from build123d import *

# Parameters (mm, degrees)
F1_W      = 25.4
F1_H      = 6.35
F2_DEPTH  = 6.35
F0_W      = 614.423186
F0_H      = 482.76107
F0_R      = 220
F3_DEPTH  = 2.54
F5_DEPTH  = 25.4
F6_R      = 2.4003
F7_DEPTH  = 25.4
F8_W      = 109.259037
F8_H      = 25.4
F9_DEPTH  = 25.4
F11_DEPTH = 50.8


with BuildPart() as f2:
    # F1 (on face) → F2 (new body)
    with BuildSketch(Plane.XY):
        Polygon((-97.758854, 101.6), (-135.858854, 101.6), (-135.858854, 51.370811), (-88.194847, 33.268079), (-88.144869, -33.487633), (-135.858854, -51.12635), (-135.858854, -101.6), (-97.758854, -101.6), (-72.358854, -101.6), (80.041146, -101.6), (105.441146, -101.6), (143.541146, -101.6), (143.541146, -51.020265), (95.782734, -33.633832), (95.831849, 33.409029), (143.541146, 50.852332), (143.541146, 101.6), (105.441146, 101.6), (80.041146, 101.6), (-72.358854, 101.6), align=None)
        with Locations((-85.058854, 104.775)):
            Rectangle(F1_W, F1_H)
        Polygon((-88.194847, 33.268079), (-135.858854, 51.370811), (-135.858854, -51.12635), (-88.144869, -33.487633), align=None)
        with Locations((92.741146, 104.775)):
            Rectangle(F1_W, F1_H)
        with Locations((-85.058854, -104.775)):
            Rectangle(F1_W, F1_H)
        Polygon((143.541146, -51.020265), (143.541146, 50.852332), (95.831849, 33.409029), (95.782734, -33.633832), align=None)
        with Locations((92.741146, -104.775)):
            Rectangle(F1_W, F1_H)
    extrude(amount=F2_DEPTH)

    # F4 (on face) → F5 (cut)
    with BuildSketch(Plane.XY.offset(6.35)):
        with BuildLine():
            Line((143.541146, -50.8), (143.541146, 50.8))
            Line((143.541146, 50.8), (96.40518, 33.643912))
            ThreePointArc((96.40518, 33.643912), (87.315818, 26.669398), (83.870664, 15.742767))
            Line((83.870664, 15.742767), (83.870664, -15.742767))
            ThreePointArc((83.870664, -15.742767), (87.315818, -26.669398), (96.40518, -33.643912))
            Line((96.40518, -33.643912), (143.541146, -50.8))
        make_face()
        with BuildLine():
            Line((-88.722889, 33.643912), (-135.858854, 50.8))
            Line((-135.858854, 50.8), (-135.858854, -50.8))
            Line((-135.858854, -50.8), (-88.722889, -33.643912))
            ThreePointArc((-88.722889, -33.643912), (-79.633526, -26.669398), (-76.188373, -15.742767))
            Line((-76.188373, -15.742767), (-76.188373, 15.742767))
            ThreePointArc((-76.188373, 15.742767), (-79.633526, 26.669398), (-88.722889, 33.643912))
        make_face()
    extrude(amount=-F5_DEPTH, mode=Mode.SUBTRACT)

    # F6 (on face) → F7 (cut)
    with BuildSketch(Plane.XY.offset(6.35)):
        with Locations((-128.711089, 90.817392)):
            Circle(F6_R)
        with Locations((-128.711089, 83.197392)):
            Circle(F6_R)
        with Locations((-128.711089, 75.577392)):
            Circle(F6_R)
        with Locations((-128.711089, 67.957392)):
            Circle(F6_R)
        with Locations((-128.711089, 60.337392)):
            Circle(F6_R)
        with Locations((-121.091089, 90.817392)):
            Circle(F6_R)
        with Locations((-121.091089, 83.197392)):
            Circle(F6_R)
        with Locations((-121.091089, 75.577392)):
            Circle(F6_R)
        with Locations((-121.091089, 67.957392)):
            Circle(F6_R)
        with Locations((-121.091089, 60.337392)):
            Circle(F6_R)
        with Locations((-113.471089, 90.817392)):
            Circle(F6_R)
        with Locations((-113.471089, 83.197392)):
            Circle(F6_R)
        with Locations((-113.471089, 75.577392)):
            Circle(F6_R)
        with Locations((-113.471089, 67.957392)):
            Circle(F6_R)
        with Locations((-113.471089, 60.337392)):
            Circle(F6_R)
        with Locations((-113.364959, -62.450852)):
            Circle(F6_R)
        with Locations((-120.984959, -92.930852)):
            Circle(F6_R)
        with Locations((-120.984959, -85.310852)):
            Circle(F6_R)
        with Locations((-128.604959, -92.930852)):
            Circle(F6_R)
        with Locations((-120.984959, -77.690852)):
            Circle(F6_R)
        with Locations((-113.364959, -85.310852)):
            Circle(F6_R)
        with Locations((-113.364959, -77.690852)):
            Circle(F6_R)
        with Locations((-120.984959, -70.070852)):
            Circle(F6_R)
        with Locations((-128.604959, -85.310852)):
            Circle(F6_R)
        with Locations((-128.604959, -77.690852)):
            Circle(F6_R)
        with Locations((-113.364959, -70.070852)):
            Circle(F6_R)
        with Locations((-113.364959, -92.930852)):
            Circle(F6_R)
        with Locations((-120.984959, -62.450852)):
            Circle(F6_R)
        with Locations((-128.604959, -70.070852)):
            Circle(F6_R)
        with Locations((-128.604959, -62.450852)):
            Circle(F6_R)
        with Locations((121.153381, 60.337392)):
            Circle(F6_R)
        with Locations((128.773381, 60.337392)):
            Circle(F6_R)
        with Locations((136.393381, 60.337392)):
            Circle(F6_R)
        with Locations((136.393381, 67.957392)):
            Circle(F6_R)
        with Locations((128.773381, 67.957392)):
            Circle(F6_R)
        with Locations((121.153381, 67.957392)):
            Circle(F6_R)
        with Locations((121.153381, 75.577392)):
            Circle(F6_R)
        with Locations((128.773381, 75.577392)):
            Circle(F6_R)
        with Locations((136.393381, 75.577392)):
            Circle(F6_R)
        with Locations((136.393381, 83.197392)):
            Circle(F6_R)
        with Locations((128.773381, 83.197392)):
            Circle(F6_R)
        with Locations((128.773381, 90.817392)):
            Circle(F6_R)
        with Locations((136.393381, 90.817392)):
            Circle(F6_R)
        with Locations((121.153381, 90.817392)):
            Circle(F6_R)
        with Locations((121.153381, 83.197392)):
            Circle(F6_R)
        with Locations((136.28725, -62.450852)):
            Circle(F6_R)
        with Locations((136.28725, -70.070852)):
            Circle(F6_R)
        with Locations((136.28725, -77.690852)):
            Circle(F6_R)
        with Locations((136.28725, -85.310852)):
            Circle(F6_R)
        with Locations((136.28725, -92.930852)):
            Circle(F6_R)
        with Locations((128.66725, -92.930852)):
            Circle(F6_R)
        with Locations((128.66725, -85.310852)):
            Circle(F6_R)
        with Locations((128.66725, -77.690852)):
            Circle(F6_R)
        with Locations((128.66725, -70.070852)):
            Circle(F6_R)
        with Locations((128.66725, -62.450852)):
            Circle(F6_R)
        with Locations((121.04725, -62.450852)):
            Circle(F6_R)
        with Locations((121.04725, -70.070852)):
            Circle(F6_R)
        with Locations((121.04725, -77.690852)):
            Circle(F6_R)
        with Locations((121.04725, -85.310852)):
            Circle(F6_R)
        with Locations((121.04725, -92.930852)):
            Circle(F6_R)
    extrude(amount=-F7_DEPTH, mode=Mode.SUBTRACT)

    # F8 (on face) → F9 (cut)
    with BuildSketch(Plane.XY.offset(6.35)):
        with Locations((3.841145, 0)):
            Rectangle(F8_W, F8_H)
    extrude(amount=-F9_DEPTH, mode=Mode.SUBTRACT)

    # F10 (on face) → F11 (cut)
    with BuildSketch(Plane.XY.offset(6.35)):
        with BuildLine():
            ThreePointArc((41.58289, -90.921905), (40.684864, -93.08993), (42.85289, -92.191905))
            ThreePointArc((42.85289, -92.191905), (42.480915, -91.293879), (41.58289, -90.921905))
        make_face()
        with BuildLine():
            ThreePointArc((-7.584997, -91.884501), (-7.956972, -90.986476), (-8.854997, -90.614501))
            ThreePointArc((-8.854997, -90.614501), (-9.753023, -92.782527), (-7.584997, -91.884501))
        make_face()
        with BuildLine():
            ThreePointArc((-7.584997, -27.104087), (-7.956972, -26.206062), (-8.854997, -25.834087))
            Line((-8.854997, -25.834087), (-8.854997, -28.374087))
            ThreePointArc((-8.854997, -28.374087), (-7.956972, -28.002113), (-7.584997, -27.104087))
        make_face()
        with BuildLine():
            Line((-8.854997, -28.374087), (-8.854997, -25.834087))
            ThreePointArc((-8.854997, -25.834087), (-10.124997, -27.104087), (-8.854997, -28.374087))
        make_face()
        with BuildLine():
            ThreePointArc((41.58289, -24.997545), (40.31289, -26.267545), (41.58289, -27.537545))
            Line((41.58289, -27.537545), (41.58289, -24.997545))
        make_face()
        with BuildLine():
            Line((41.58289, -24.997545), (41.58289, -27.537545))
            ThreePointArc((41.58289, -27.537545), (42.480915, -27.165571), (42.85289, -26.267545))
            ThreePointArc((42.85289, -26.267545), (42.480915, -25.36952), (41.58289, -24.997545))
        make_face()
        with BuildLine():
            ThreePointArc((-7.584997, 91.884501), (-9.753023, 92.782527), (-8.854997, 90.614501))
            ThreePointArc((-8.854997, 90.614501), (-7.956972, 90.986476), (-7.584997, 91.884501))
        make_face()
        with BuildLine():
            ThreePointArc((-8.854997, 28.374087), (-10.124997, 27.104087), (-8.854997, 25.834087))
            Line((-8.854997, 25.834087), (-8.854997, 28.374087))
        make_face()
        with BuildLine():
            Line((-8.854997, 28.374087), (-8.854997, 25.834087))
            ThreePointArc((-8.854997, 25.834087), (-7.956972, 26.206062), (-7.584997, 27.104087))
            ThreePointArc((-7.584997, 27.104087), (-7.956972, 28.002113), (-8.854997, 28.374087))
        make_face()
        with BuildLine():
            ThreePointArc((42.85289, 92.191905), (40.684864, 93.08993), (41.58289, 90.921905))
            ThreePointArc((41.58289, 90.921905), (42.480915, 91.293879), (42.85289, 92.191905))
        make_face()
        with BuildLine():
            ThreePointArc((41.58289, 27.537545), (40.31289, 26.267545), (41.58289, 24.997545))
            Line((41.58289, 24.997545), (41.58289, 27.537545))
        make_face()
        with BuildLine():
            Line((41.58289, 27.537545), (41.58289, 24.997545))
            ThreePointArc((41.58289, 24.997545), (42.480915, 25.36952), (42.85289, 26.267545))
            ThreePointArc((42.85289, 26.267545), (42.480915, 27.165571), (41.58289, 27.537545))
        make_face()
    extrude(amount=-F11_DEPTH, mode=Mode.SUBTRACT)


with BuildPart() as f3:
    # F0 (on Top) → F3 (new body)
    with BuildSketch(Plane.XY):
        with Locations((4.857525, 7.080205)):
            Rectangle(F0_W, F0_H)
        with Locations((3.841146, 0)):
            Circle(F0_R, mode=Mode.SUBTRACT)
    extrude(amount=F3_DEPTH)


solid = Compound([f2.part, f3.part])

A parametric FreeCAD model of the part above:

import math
import FreeCAD as App
import Part
import Sketcher
Q = App.Units.Quantity

doc = App.newDocument("Part")
body = doc.addObject("PartDesign::Body", "Body")

# Sketch on XY plane
sketch1 = body.newObject("Sketcher::SketchObject", "Sketch")
sketch1.AttachmentSupport = (doc.getObject("XY_Plane"), [""])
sketch1.MapMode = "FlatFace"
sketch1.addGeometry(Part.LineSegment(App.Vector(-135.858854, 101.6, 0), App.Vector(-135.858854, -101.6, 0)), False)
sketch1.addGeometry(Part.LineSegment(App.Vector(-135.858854, -101.6, 0), App.Vector(-97.758854, -101.6, 0)), False)
sketch1.addGeometry(Part.LineSegment(App.Vector(-97.758854, -101.6, 0), App.Vector(-97.758854, -107.95, 0)), False)
sketch1.addGeometry(Part.LineSegment(App.Vector(-97.758854, -107.95, 0), App.Vector(-72.358854, -107.95, 0)), False)
sketch1.addGeometry(Part.LineSegment(App.Vector(-72.358854, -107.95, 0), App.Vector(-72.358854, -101.6, 0)), False)
sketch1.addGeometry(Part.LineSegment(App.Vector(-72.358854, -101.6, 0), App.Vector(80.041146, -101.6, 0)), False)
sketch1.addGeometry(Part.LineSegment(App.Vector(80.041146, -101.6, 0), App.Vector(80.041146, -107.95, 0)), False)
sketch1.addGeometry(Part.LineSegment(App.Vector(80.041146, -107.95, 0), App.Vector(105.441146, -107.95, 0)), False)
sketch1.addGeometry(Part.LineSegment(App.Vector(105.441146, -107.95, 0), App.Vector(105.441146, -101.6, 0)), False)
sketch1.addGeometry(Part.LineSegment(App.Vector(105.441146, -101.6, 0), App.Vector(143.541146, -101.6, 0)), False)
sketch1.addGeometry(Part.LineSegment(App.Vector(143.541146, -101.6, 0), App.Vector(143.541146, 101.6, 0)), False)
sketch1.addGeometry(Part.LineSegment(App.Vector(143.541146, 101.6, 0), App.Vector(105.441146, 101.6, 0)), False)
sketch1.addGeometry(Part.LineSegment(App.Vector(105.441146, 101.6, 0), App.Vector(105.441146, 107.95, 0)), False)
sketch1.addGeometry(Part.LineSegment(App.Vector(105.441146, 107.95, 0), App.Vector(80.041146, 107.95, 0)), False)
sketch1.addGeometry(Part.LineSegment(App.Vector(80.041146, 107.95, 0), App.Vector(80.041146, 101.6, 0)), False)
sketch1.addGeometry(Part.LineSegment(App.Vector(80.041146, 101.6, 0), App.Vector(-72.358854, 101.6, 0)), False)
sketch1.addGeometry(Part.LineSegment(App.Vector(-72.358854, 101.6, 0), App.Vector(-72.358854, 107.95, 0)), False)
sketch1.addGeometry(Part.LineSegment(App.Vector(-72.358854, 107.95, 0), App.Vector(-97.758854, 107.95, 0)), False)
sketch1.addGeometry(Part.LineSegment(App.Vector(-97.758854, 107.95, 0), App.Vector(-97.758854, 101.6, 0)), False)
sketch1.addGeometry(Part.LineSegment(App.Vector(-97.758854, 101.6, 0), App.Vector(-135.858854, 101.6, 0)), False)
sketch1.addConstraint(Sketcher.Constraint("Coincident", 0, 2, 1, 1))
sketch1.addConstraint(Sketcher.Constraint("Coincident", 1, 2, 2, 1))
sketch1.addConstraint(Sketcher.Constraint("Coincident", 2, 2, 3, 1))
sketch1.addConstraint(Sketcher.Constraint("Coincident", 3, 2, 4, 1))
sketch1.addConstraint(Sketcher.Constraint("Coincident", 4, 2, 5, 1))
sketch1.addConstraint(Sketcher.Constraint("Coincident", 5, 2, 6, 1))
sketch1.addConstraint(Sketcher.Constraint("Coincident", 6, 2, 7, 1))
sketch1.addConstraint(Sketcher.Constraint("Coincident", 7, 2, 8, 1))
sketch1.addConstraint(Sketcher.Constraint("Coincident", 8, 2, 9, 1))
sketch1.addConstraint(Sketcher.Constraint("Coincident", 9, 2, 10, 1))
sketch1.addConstraint(Sketcher.Constraint("Coincident", 10, 2, 11, 1))
sketch1.addConstraint(Sketcher.Constraint("Coincident", 11, 2, 12, 1))
sketch1.addConstraint(Sketcher.Constraint("Coincident", 12, 2, 13, 1))
sketch1.addConstraint(Sketcher.Constraint("Coincident", 13, 2, 14, 1))
sketch1.addConstraint(Sketcher.Constraint("Coincident", 14, 2, 15, 1))
sketch1.addConstraint(Sketcher.Constraint("Coincident", 15, 2, 16, 1))
sketch1.addConstraint(Sketcher.Constraint("Coincident", 16, 2, 17, 1))
sketch1.addConstraint(Sketcher.Constraint("Coincident", 17, 2, 18, 1))
sketch1.addConstraint(Sketcher.Constraint("Coincident", 18, 2, 19, 1))
sketch1.addConstraint(Sketcher.Constraint("Coincident", 19, 2, 0, 1))
sketch1.addConstraint(Sketcher.Constraint("Vertical", 0))
sketch1.addConstraint(Sketcher.Constraint("Horizontal", 1))
sketch1.addConstraint(Sketcher.Constraint("Vertical", 2))
sketch1.addConstraint(Sketcher.Constraint("Horizontal", 3))
sketch1.addConstraint(Sketcher.Constraint("Vertical", 4))
sketch1.addConstraint(Sketcher.Constraint("Horizontal", 5))
sketch1.addConstraint(Sketcher.Constraint("Vertical", 6))
sketch1.addConstraint(Sketcher.Constraint("Horizontal", 7))
sketch1.addConstraint(Sketcher.Constraint("Vertical", 8))
sketch1.addConstraint(Sketcher.Constraint("Horizontal", 9))
sketch1.addConstraint(Sketcher.Constraint("Vertical", 10))
sketch1.addConstraint(Sketcher.Constraint("Horizontal", 11))
sketch1.addConstraint(Sketcher.Constraint("Vertical", 12))
sketch1.addConstraint(Sketcher.Constraint("Horizontal", 13))
sketch1.addConstraint(Sketcher.Constraint("Vertical", 14))
sketch1.addConstraint(Sketcher.Constraint("Horizontal", 15))
sketch1.addConstraint(Sketcher.Constraint("Vertical", 16))
sketch1.addConstraint(Sketcher.Constraint("Horizontal", 17))
sketch1.addConstraint(Sketcher.Constraint("Vertical", 18))
sketch1.addConstraint(Sketcher.Constraint("Horizontal", 19))
sketch1.addConstraint(Sketcher.Constraint("Symmetric", 8, 2, 11, 2, -1))
sketch1.addConstraint(Sketcher.Constraint("Symmetric", 6, 2, 13, 2, -1))
sketch1.addConstraint(Sketcher.Constraint("Symmetric", 4, 2, 15, 2, -1))
sketch1.addConstraint(Sketcher.Constraint("Symmetric", 2, 2, 17, 2, -1))
sketch1.addConstraint(Sketcher.Constraint("Horizontal", 1, 2, 4, 2))
sketch1.addConstraint(Sketcher.Constraint("Horizontal", 3, 2, 6, 2))
sketch1.addConstraint(Sketcher.Constraint("Horizontal", 5, 2, 8, 2))
sketch1.addConstraint(Sketcher.Constraint("Horizontal", 15, 2, 18, 2))
sketch1.addConstraint(Sketcher.Constraint("Equal", 3, 7))
sketch1.addConstraint(Sketcher.Constraint("Equal", 1, 9))
sketch1.addConstraint(Sketcher.Constraint("DistanceX", 3, 1, 3, 2, Q("1 in")))
sketch1.addConstraint(Sketcher.Constraint("DistanceX", 5, 1, 5, 2, Q("6 in")))
sketch1.addConstraint(Sketcher.Constraint("DistanceY", 0, 2, 0, 1, Q("8 in")))
sketch1.addConstraint(Sketcher.Constraint("DistanceX", 1, 1, 1, 2, Q("1.5 in")))
sketch1.addConstraint(Sketcher.Constraint("DistanceY", 2, 2, 2, 1, Q("0.25 in")))
sketch1.addConstraint(Sketcher.Constraint("DistanceX", 0, 2, -1, 1, Q("135.858854 mm")))
pad1 = body.newObject("PartDesign::Pad", "Pad")
pad1.Profile = sketch1
pad1.Length = Q("0.25 in")

# Sketch on XY plane
sketch2 = body.newObject("Sketcher::SketchObject", "Sketch001")
sketch2.AttachmentSupport = (doc.getObject("XY_Plane"), [""])
sketch2.MapMode = "FlatFace"
sketch2.AttachmentOffset = App.Placement(App.Vector(0, 0, 0.25 * 25.4), App.Rotation())
sketch2.addGeometry(Part.LineSegment(App.Vector(143.541146, -50.8, 0), App.Vector(143.541146, 50.8, 0)), False)
sketch2.addGeometry(Part.LineSegment(App.Vector(143.541146, 50.8, 0), App.Vector(96.40518, 33.643912, 0)), False)
sketch2.addGeometry(Part.ArcOfCircle(Part.Circle(App.Vector(102.920668, 15.742765, 0), App.Vector(0, 0, 1), 19.050004), math.radians(110.000009), math.radians(179.999994)), False)
sketch2.addGeometry(Part.LineSegment(App.Vector(83.870664, 15.742767, 0), App.Vector(83.870664, -15.742767, 0)), False)
sketch2.addGeometry(Part.ArcOfCircle(Part.Circle(App.Vector(102.920668, -15.742765, 0), App.Vector(0, 0, 1), 19.050004), math.radians(-179.999994), math.radians(-110.000009)), False)
sketch2.addGeometry(Part.LineSegment(App.Vector(96.40518, -33.643912, 0), App.Vector(143.541146, -50.8, 0)), False)
sketch2.addGeometry(Part.LineSegment(App.Vector(-88.722889, 33.643912, 0), App.Vector(-135.858854, 50.8, 0)), False)
sketch2.addGeometry(Part.LineSegment(App.Vector(-135.858854, 50.8, 0), App.Vector(-135.858854, -50.8, 0)), False)
sketch2.addGeometry(Part.LineSegment(App.Vector(-135.858854, -50.8, 0), App.Vector(-88.722889, -33.643912, 0)), False)
sketch2.addGeometry(Part.ArcOfCircle(Part.Circle(App.Vector(-95.238373, -15.742768, 0), App.Vector(0, 0, 1), 19.05), math.radians(-69.999999), math.radians(0.000002)), False)
sketch2.addGeometry(Part.LineSegment(App.Vector(-76.188373, -15.742767, 0), App.Vector(-76.188373, 15.742767, 0)), False)
sketch2.addGeometry(Part.ArcOfCircle(Part.Circle(App.Vector(-95.238373, 15.742768, 0), App.Vector(0, 0, 1), 19.05), math.radians(-0.000002), math.radians(69.999999)), False)
sketch2.addConstraint(Sketcher.Constraint("Coincident", 0, 2, 1, 1))
sketch2.addConstraint(Sketcher.Constraint("Tangent", 1, 2, 2, 1))
sketch2.addConstraint(Sketcher.Constraint("Tangent", 2, 2, 3, 1))
sketch2.addConstraint(Sketcher.Constraint("Tangent", 3, 2, 4, 1))
sketch2.addConstraint(Sketcher.Constraint("Tangent", 4, 2, 5, 1))
sketch2.addConstraint(Sketcher.Constraint("Coincident", 5, 2, 0, 1))
sketch2.addConstraint(Sketcher.Constraint("Coincident", 6, 2, 7, 1))
sketch2.addConstraint(Sketcher.Constraint("Coincident", 7, 2, 8, 1))
sketch2.addConstraint(Sketcher.Constraint("Tangent", 8, 2, 9, 1))
sketch2.addConstraint(Sketcher.Constraint("Tangent", 9, 2, 10, 1))
sketch2.addConstraint(Sketcher.Constraint("Tangent", 10, 2, 11, 1))
sketch2.addConstraint(Sketcher.Constraint("Tangent", 11, 2, 6, 1))
sketch2.addConstraint(Sketcher.Constraint("Vertical", 0))
sketch2.addConstraint(Sketcher.Constraint("Vertical", 3))
sketch2.addConstraint(Sketcher.Constraint("Vertical", 7))
sketch2.addConstraint(Sketcher.Constraint("Vertical", 10))
sketch2.addConstraint(Sketcher.Constraint("Equal", 2, 4))
sketch2.addConstraint(Sketcher.Constraint("Equal", 9, 11))
sketch2.addConstraint(Sketcher.Constraint("Symmetric", 1, 2, 4, 2, -1))
sketch2.addConstraint(Sketcher.Constraint("Symmetric", 8, 2, 11, 2, -1))
sketch2.addConstraint(Sketcher.Constraint("Parallel", 5, 6))
sketch2.addConstraint(Sketcher.Constraint("Horizontal", 11, 3, 2, 2))
sketch2.addConstraint(Sketcher.Constraint("Horizontal", 0, 2, 6, 2))
sketch2.addConstraint(Sketcher.Constraint("Horizontal", 4, 2, 8, 2))
sketch2.addConstraint(Sketcher.Constraint("DistanceY", 0, 1, 0, 2, Q("4 in")))
sketch2.addConstraint(Sketcher.Constraint("Radius", 2, Q("0.7500001 in")))
sketch2.addConstraint(Sketcher.Constraint("Angle", 1, Q("-160.000001 deg")))
sketch2.addConstraint(Sketcher.Constraint("DistanceY", 3, 2, 3, 1, Q("31.485534 mm")))
sketch2.addConstraint(Sketcher.Constraint("DistanceX", -1, 1, 1, 2, Q("96.40518 mm")))
sketch2.addConstraint(Sketcher.Constraint("DistanceX", 8, 2, -1, 1, Q("88.722889 mm")))
pocket1 = body.newObject("PartDesign::Pocket", "Pocket")
pocket1.Profile = sketch2
pocket1.Length = Q("1 in")

# Sketch on XY plane
sketch3 = body.newObject("Sketcher::SketchObject", "Sketch002")
sketch3.AttachmentSupport = (doc.getObject("XY_Plane"), [""])
sketch3.MapMode = "FlatFace"
sketch3.AttachmentOffset = App.Placement(App.Vector(0, 0, 0.25 * 25.4), App.Rotation())
sketch3.addGeometry(Part.Circle(App.Vector(-128.711089, 90.817392, 0), App.Vector(0, 0, 1), 2.4003), False)
sketch3.addGeometry(Part.Circle(App.Vector(-128.711089, 83.197392, 0), App.Vector(0, 0, 1), 2.4003), False)
sketch3.addGeometry(Part.Circle(App.Vector(-128.711089, 75.577392, 0), App.Vector(0, 0, 1), 2.4003), False)
sketch3.addGeometry(Part.Circle(App.Vector(-128.711089, 67.957392, 0), App.Vector(0, 0, 1), 2.4003), False)
sketch3.addGeometry(Part.Circle(App.Vector(-128.711089, 60.337392, 0), App.Vector(0, 0, 1), 2.4003), False)
sketch3.addGeometry(Part.Circle(App.Vector(-121.091089, 90.817392, 0), App.Vector(0, 0, 1), 2.4003), False)
sketch3.addGeometry(Part.Circle(App.Vector(-121.091089, 83.197392, 0), App.Vector(0, 0, 1), 2.4003), False)
sketch3.addGeometry(Part.Circle(App.Vector(-121.091089, 75.577392, 0), App.Vector(0, 0, 1), 2.4003), False)
sketch3.addGeometry(Part.Circle(App.Vector(-121.091089, 67.957392, 0), App.Vector(0, 0, 1), 2.4003), False)
sketch3.addGeometry(Part.Circle(App.Vector(-121.091089, 60.337392, 0), App.Vector(0, 0, 1), 2.4003), False)
sketch3.addGeometry(Part.Circle(App.Vector(-113.471089, 90.817392, 0), App.Vector(0, 0, 1), 2.4003), False)
sketch3.addGeometry(Part.Circle(App.Vector(-113.471089, 83.197392, 0), App.Vector(0, 0, 1), 2.4003), False)
sketch3.addGeometry(Part.Circle(App.Vector(-113.471089, 75.577392, 0), App.Vector(0, 0, 1), 2.4003), False)
sketch3.addGeometry(Part.Circle(App.Vector(-113.471089, 67.957392, 0), App.Vector(0, 0, 1), 2.4003), False)
sketch3.addGeometry(Part.Circle(App.Vector(-113.471089, 60.337392, 0), App.Vector(0, 0, 1), 2.4003), False)
sketch3.addGeometry(Part.Circle(App.Vector(-113.364959, -62.450852, 0), App.Vector(0, 0, 1), 2.4003), False)
sketch3.addGeometry(Part.Circle(App.Vector(-120.984959, -92.930852, 0), App.Vector(0, 0, 1), 2.4003), False)
sketch3.addGeometry(Part.Circle(App.Vector(-120.984959, -85.310852, 0), App.Vector(0, 0, 1), 2.4003), False)
sketch3.addGeometry(Part.Circle(App.Vector(-128.604959, -92.930852, 0), App.Vector(0, 0, 1), 2.4003), False)
sketch3.addGeometry(Part.Circle(App.Vector(-120.984959, -77.690852, 0), App.Vector(0, 0, 1), 2.4003), False)
sketch3.addGeometry(Part.Circle(App.Vector(-113.364959, -85.310852, 0), App.Vector(0, 0, 1), 2.4003), False)
sketch3.addGeometry(Part.Circle(App.Vector(-113.364959, -77.690852, 0), App.Vector(0, 0, 1), 2.4003), False)
sketch3.addGeometry(Part.Circle(App.Vector(-120.984959, -70.070852, 0), App.Vector(0, 0, 1), 2.4003), False)
sketch3.addGeometry(Part.Circle(App.Vector(-128.604959, -85.310852, 0), App.Vector(0, 0, 1), 2.4003), False)
sketch3.addGeometry(Part.Circle(App.Vector(-128.604959, -77.690852, 0), App.Vector(0, 0, 1), 2.4003), False)
sketch3.addGeometry(Part.Circle(App.Vector(-113.364959, -70.070852, 0), App.Vector(0, 0, 1), 2.4003), False)
sketch3.addGeometry(Part.Circle(App.Vector(-113.364959, -92.930852, 0), App.Vector(0, 0, 1), 2.4003), False)
sketch3.addGeometry(Part.Circle(App.Vector(-120.984959, -62.450852, 0), App.Vector(0, 0, 1), 2.4003), False)
sketch3.addGeometry(Part.Circle(App.Vector(-128.604959, -70.070852, 0), App.Vector(0, 0, 1), 2.4003), False)
sketch3.addGeometry(Part.Circle(App.Vector(-128.604959, -62.450852, 0), App.Vector(0, 0, 1), 2.4003), False)
sketch3.addGeometry(Part.Circle(App.Vector(121.153381, 60.337392, 0), App.Vector(0, 0, 1), 2.4003), False)
sketch3.addGeometry(Part.Circle(App.Vector(128.773381, 60.337392, 0), App.Vector(0, 0, 1), 2.4003), False)
sketch3.addGeometry(Part.Circle(App.Vector(136.393381, 60.337392, 0), App.Vector(0, 0, 1), 2.4003), False)
sketch3.addGeometry(Part.Circle(App.Vector(136.393381, 67.957392, 0), App.Vector(0, 0, 1), 2.4003), False)
sketch3.addGeometry(Part.Circle(App.Vector(128.773381, 67.957392, 0), App.Vector(0, 0, 1), 2.4003), False)
sketch3.addGeometry(Part.Circle(App.Vector(121.153381, 67.957392, 0), App.Vector(0, 0, 1), 2.4003), False)
sketch3.addGeometry(Part.Circle(App.Vector(121.153381, 75.577392, 0), App.Vector(0, 0, 1), 2.4003), False)
sketch3.addGeometry(Part.Circle(App.Vector(128.773381, 75.577392, 0), App.Vector(0, 0, 1), 2.4003), False)
sketch3.addGeometry(Part.Circle(App.Vector(136.393381, 75.577392, 0), App.Vector(0, 0, 1), 2.4003), False)
sketch3.addGeometry(Part.Circle(App.Vector(136.393381, 83.197392, 0), App.Vector(0, 0, 1), 2.4003), False)
sketch3.addGeometry(Part.Circle(App.Vector(128.773381, 83.197392, 0), App.Vector(0, 0, 1), 2.4003), False)
sketch3.addGeometry(Part.Circle(App.Vector(128.773381, 90.817392, 0), App.Vector(0, 0, 1), 2.4003), False)
sketch3.addGeometry(Part.Circle(App.Vector(136.393381, 90.817392, 0), App.Vector(0, 0, 1), 2.4003), False)
sketch3.addGeometry(Part.Circle(App.Vector(121.153381, 90.817392, 0), App.Vector(0, 0, 1), 2.4003), False)
sketch3.addGeometry(Part.Circle(App.Vector(121.153381, 83.197392, 0), App.Vector(0, 0, 1), 2.4003), False)
sketch3.addGeometry(Part.Circle(App.Vector(136.28725, -62.450852, 0), App.Vector(0, 0, 1), 2.4003), False)
sketch3.addGeometry(Part.Circle(App.Vector(136.28725, -70.070852, 0), App.Vector(0, 0, 1), 2.4003), False)
sketch3.addGeometry(Part.Circle(App.Vector(136.28725, -77.690852, 0), App.Vector(0, 0, 1), 2.4003), False)
sketch3.addGeometry(Part.Circle(App.Vector(136.28725, -85.310852, 0), App.Vector(0, 0, 1), 2.4003), False)
sketch3.addGeometry(Part.Circle(App.Vector(136.28725, -92.930852, 0), App.Vector(0, 0, 1), 2.4003), False)
sketch3.addGeometry(Part.Circle(App.Vector(128.66725, -92.930852, 0), App.Vector(0, 0, 1), 2.4003), False)
sketch3.addGeometry(Part.Circle(App.Vector(128.66725, -85.310852, 0), App.Vector(0, 0, 1), 2.4003), False)
sketch3.addGeometry(Part.Circle(App.Vector(128.66725, -77.690852, 0), App.Vector(0, 0, 1), 2.4003), False)
sketch3.addGeometry(Part.Circle(App.Vector(128.66725, -70.070852, 0), App.Vector(0, 0, 1), 2.4003), False)
sketch3.addGeometry(Part.Circle(App.Vector(128.66725, -62.450852, 0), App.Vector(0, 0, 1), 2.4003), False)
sketch3.addGeometry(Part.Circle(App.Vector(121.04725, -62.450852, 0), App.Vector(0, 0, 1), 2.4003), False)
sketch3.addGeometry(Part.Circle(App.Vector(121.04725, -70.070852, 0), App.Vector(0, 0, 1), 2.4003), False)
sketch3.addGeometry(Part.Circle(App.Vector(121.04725, -77.690852, 0), App.Vector(0, 0, 1), 2.4003), False)
sketch3.addGeometry(Part.Circle(App.Vector(121.04725, -85.310852, 0), App.Vector(0, 0, 1), 2.4003), False)
sketch3.addGeometry(Part.Circle(App.Vector(121.04725, -92.930852, 0), App.Vector(0, 0, 1), 2.4003), False)
sketch3.addConstraint(Sketcher.Constraint("Equal", 0, 1))
sketch3.addConstraint(Sketcher.Constraint("Equal", 1, 2))
sketch3.addConstraint(Sketcher.Constraint("Equal", 2, 3))
sketch3.addConstraint(Sketcher.Constraint("Equal", 3, 4))
sketch3.addConstraint(Sketcher.Constraint("Equal", 4, 5))
sketch3.addConstraint(Sketcher.Constraint("Equal", 5, 6))
sketch3.addConstraint(Sketcher.Constraint("Equal", 6, 7))
sketch3.addConstraint(Sketcher.Constraint("Equal", 7, 8))
sketch3.addConstraint(Sketcher.Constraint("Equal", 8, 9))
sketch3.addConstraint(Sketcher.Constraint("Equal", 9, 10))
sketch3.addConstraint(Sketcher.Constraint("Equal", 10, 11))
sketch3.addConstraint(Sketcher.Constraint("Equal", 11, 12))
sketch3.addConstraint(Sketcher.Constraint("Equal", 12, 13))
sketch3.addConstraint(Sketcher.Constraint("Equal", 13, 14))
sketch3.addConstraint(Sketcher.Constraint("Equal", 14, 15))
sketch3.addConstraint(Sketcher.Constraint("Equal", 15, 16))
sketch3.addConstraint(Sketcher.Constraint("Equal", 16, 17))
sketch3.addConstraint(Sketcher.Constraint("Equal", 17, 18))
sketch3.addConstraint(Sketcher.Constraint("Equal", 18, 19))
sketch3.addConstraint(Sketcher.Constraint("Equal", 19, 20))
sketch3.addConstraint(Sketcher.Constraint("Equal", 20, 21))
sketch3.addConstraint(Sketcher.Constraint("Equal", 21, 22))
sketch3.addConstraint(Sketcher.Constraint("Equal", 22, 23))
sketch3.addConstraint(Sketcher.Constraint("Equal", 23, 24))
sketch3.addConstraint(Sketcher.Constraint("Equal", 24, 25))
sketch3.addConstraint(Sketcher.Constraint("Equal", 25, 26))
sketch3.addConstraint(Sketcher.Constraint("Equal", 26, 27))
sketch3.addConstraint(Sketcher.Constraint("Equal", 27, 28))
sketch3.addConstraint(Sketcher.Constraint("Equal", 28, 29))
sketch3.addConstraint(Sketcher.Constraint("Equal", 29, 30))
sketch3.addConstraint(Sketcher.Constraint("Equal", 30, 31))
sketch3.addConstraint(Sketcher.Constraint("Equal", 31, 32))
sketch3.addConstraint(Sketcher.Constraint("Equal", 32, 33))
sketch3.addConstraint(Sketcher.Constraint("Equal", 33, 34))
sketch3.addConstraint(Sketcher.Constraint("Equal", 34, 35))
sketch3.addConstraint(Sketcher.Constraint("Equal", 35, 36))
sketch3.addConstraint(Sketcher.Constraint("Equal", 36, 37))
sketch3.addConstraint(Sketcher.Constraint("Equal", 37, 38))
sketch3.addConstraint(Sketcher.Constraint("Equal", 38, 39))
sketch3.addConstraint(Sketcher.Constraint("Equal", 39, 40))
sketch3.addConstraint(Sketcher.Constraint("Equal", 40, 41))
sketch3.addConstraint(Sketcher.Constraint("Equal", 41, 42))
sketch3.addConstraint(Sketcher.Constraint("Equal", 42, 43))
sketch3.addConstraint(Sketcher.Constraint("Equal", 43, 44))
sketch3.addConstraint(Sketcher.Constraint("Equal", 44, 45))
sketch3.addConstraint(Sketcher.Constraint("Equal", 45, 46))
sketch3.addConstraint(Sketcher.Constraint("Equal", 46, 47))
sketch3.addConstraint(Sketcher.Constraint("Equal", 47, 48))
sketch3.addConstraint(Sketcher.Constraint("Equal", 48, 49))
sketch3.addConstraint(Sketcher.Constraint("Equal", 49, 50))
sketch3.addConstraint(Sketcher.Constraint("Equal", 50, 51))
sketch3.addConstraint(Sketcher.Constraint("Equal", 51, 52))
sketch3.addConstraint(Sketcher.Constraint("Equal", 52, 53))
sketch3.addConstraint(Sketcher.Constraint("Equal", 53, 54))
sketch3.addConstraint(Sketcher.Constraint("Equal", 54, 55))
sketch3.addConstraint(Sketcher.Constraint("Equal", 55, 56))
sketch3.addConstraint(Sketcher.Constraint("Equal", 56, 57))
sketch3.addConstraint(Sketcher.Constraint("Equal", 57, 58))
sketch3.addConstraint(Sketcher.Constraint("Equal", 58, 59))
sketch3.addConstraint(Sketcher.Constraint("Horizontal", 0, 3, 5, 3))
sketch3.addConstraint(Sketcher.Constraint("Horizontal", 1, 3, 6, 3))
sketch3.addConstraint(Sketcher.Constraint("Horizontal", 2, 3, 7, 3))
sketch3.addConstraint(Sketcher.Constraint("Horizontal", 3, 3, 8, 3))
sketch3.addConstraint(Sketcher.Constraint("Horizontal", 4, 3, 9, 3))
sketch3.addConstraint(Sketcher.Constraint("Horizontal", 5, 3, 10, 3))
sketch3.addConstraint(Sketcher.Constraint("Horizontal", 6, 3, 11, 3))
sketch3.addConstraint(Sketcher.Constraint("Horizontal", 7, 3, 12, 3))
sketch3.addConstraint(Sketcher.Constraint("Horizontal", 8, 3, 13, 3))
sketch3.addConstraint(Sketcher.Constraint("Horizontal", 9, 3, 14, 3))
sketch3.addConstraint(Sketcher.Constraint("Horizontal", 16, 3, 18, 3))
sketch3.addConstraint(Sketcher.Constraint("Horizontal", 17, 3, 20, 3))
sketch3.addConstraint(Sketcher.Constraint("Horizontal", 19, 3, 21, 3))
sketch3.addConstraint(Sketcher.Constraint("Horizontal", 20, 3, 23, 3))
sketch3.addConstraint(Sketcher.Constraint("Horizontal", 21, 3, 24, 3))
sketch3.addConstraint(Sketcher.Constraint("Horizontal", 22, 3, 25, 3))
sketch3.addConstraint(Sketcher.Constraint("Horizontal", 18, 3, 26, 3))
sketch3.addConstraint(Sketcher.Constraint("Horizontal", 15, 3, 27, 3))
sketch3.addConstraint(Sketcher.Constraint("Horizontal", 25, 3, 28, 3))
sketch3.addConstraint(Sketcher.Constraint("Horizontal", 27, 3, 29, 3))
sketch3.addConstraint(Sketcher.Constraint("Horizontal", 14, 3, 30, 3))
sketch3.addConstraint(Sketcher.Constraint("Horizontal", 30, 3, 31, 3))
sketch3.addConstraint(Sketcher.Constraint("Horizontal", 31, 3, 32, 3))
sketch3.addConstraint(Sketcher.Constraint("Horizontal", 13, 3, 33, 3))
sketch3.addConstraint(Sketcher.Constraint("Horizontal", 33, 3, 34, 3))
sketch3.addConstraint(Sketcher.Constraint("Horizontal", 34, 3, 35, 3))
sketch3.addConstraint(Sketcher.Constraint("Horizontal", 12, 3, 36, 3))
sketch3.addConstraint(Sketcher.Constraint("Horizontal", 36, 3, 37, 3))
sketch3.addConstraint(Sketcher.Constraint("Horizontal", 37, 3, 38, 3))
sketch3.addConstraint(Sketcher.Constraint("Horizontal", 11, 3, 39, 3))
sketch3.addConstraint(Sketcher.Constraint("Horizontal", 39, 3, 40, 3))
sketch3.addConstraint(Sketcher.Constraint("Horizontal", 10, 3, 41, 3))
sketch3.addConstraint(Sketcher.Constraint("Horizontal", 41, 3, 42, 3))
sketch3.addConstraint(Sketcher.Constraint("Horizontal", 42, 3, 43, 3))
sketch3.addConstraint(Sketcher.Constraint("Horizontal", 40, 3, 44, 3))
sketch3.addConstraint(Sketcher.Constraint("Horizontal", 29, 3, 45, 3))
sketch3.addConstraint(Sketcher.Constraint("Horizontal", 28, 3, 46, 3))
sketch3.addConstraint(Sketcher.Constraint("Horizontal", 24, 3, 47, 3))
sketch3.addConstraint(Sketcher.Constraint("Horizontal", 23, 3, 48, 3))
sketch3.addConstraint(Sketcher.Constraint("Horizontal", 26, 3, 49, 3))
sketch3.addConstraint(Sketcher.Constraint("Horizontal", 49, 3, 50, 3))
sketch3.addConstraint(Sketcher.Constraint("Horizontal", 48, 3, 51, 3))
sketch3.addConstraint(Sketcher.Constraint("Horizontal", 47, 3, 52, 3))
sketch3.addConstraint(Sketcher.Constraint("Horizontal", 46, 3, 53, 3))
sketch3.addConstraint(Sketcher.Constraint("Horizontal", 45, 3, 54, 3))
sketch3.addConstraint(Sketcher.Constraint("Horizontal", 54, 3, 55, 3))
sketch3.addConstraint(Sketcher.Constraint("Horizontal", 53, 3, 56, 3))
sketch3.addConstraint(Sketcher.Constraint("Horizontal", 52, 3, 57, 3))
sketch3.addConstraint(Sketcher.Constraint("Horizontal", 51, 3, 58, 3))
sketch3.addConstraint(Sketcher.Constraint("Horizontal", 50, 3, 59, 3))
sketch3.addConstraint(Sketcher.Constraint("Vertical", 0, 3, 1, 3))
sketch3.addConstraint(Sketcher.Constraint("Vertical", 1, 3, 2, 3))
sketch3.addConstraint(Sketcher.Constraint("Vertical", 2, 3, 3, 3))
sketch3.addConstraint(Sketcher.Constraint("Vertical", 3, 3, 4, 3))
sketch3.addConstraint(Sketcher.Constraint("Vertical", 5, 3, 6, 3))
sketch3.addConstraint(Sketcher.Constraint("Vertical", 6, 3, 7, 3))
sketch3.addConstraint(Sketcher.Constraint("Vertical", 7, 3, 8, 3))
sketch3.addConstraint(Sketcher.Constraint("Vertical", 8, 3, 9, 3))
sketch3.addConstraint(Sketcher.Constraint("Vertical", 10, 3, 11, 3))
sketch3.addConstraint(Sketcher.Constraint("Vertical", 11, 3, 12, 3))
sketch3.addConstraint(Sketcher.Constraint("Vertical", 12, 3, 13, 3))
sketch3.addConstraint(Sketcher.Constraint("Vertical", 13, 3, 14, 3))
sketch3.addConstraint(Sketcher.Constraint("Vertical", 16, 3, 17, 3))
sketch3.addConstraint(Sketcher.Constraint("Vertical", 17, 3, 19, 3))
sketch3.addConstraint(Sketcher.Constraint("Vertical", 15, 3, 20, 3))
sketch3.addConstraint(Sketcher.Constraint("Vertical", 20, 3, 21, 3))
sketch3.addConstraint(Sketcher.Constraint("Vertical", 19, 3, 22, 3))
sketch3.addConstraint(Sketcher.Constraint("Vertical", 18, 3, 23, 3))
sketch3.addConstraint(Sketcher.Constraint("Vertical", 23, 3, 24, 3))
sketch3.addConstraint(Sketcher.Constraint("Vertical", 21, 3, 25, 3))
sketch3.addConstraint(Sketcher.Constraint("Vertical", 25, 3, 26, 3))
sketch3.addConstraint(Sketcher.Constraint("Vertical", 22, 3, 27, 3))
sketch3.addConstraint(Sketcher.Constraint("Vertical", 24, 3, 28, 3))
sketch3.addConstraint(Sketcher.Constraint("Vertical", 28, 3, 29, 3))
sketch3.addConstraint(Sketcher.Constraint("Vertical", 32, 3, 33, 3))
sketch3.addConstraint(Sketcher.Constraint("Vertical", 31, 3, 34, 3))
sketch3.addConstraint(Sketcher.Constraint("Vertical", 30, 3, 35, 3))
sketch3.addConstraint(Sketcher.Constraint("Vertical", 35, 3, 36, 3))
sketch3.addConstraint(Sketcher.Constraint("Vertical", 34, 3, 37, 3))
sketch3.addConstraint(Sketcher.Constraint("Vertical", 33, 3, 38, 3))
sketch3.addConstraint(Sketcher.Constraint("Vertical", 38, 3, 39, 3))
sketch3.addConstraint(Sketcher.Constraint("Vertical", 37, 3, 40, 3))
sketch3.addConstraint(Sketcher.Constraint("Vertical", 40, 3, 41, 3))
sketch3.addConstraint(Sketcher.Constraint("Vertical", 39, 3, 42, 3))
sketch3.addConstraint(Sketcher.Constraint("Vertical", 36, 3, 43, 3))
sketch3.addConstraint(Sketcher.Constraint("Vertical", 43, 3, 44, 3))
sketch3.addConstraint(Sketcher.Constraint("Vertical", 45, 3, 46, 3))
sketch3.addConstraint(Sketcher.Constraint("Vertical", 46, 3, 47, 3))
sketch3.addConstraint(Sketcher.Constraint("Vertical", 47, 3, 48, 3))
sketch3.addConstraint(Sketcher.Constraint("Vertical", 48, 3, 49, 3))
sketch3.addConstraint(Sketcher.Constraint("Vertical", 50, 3, 51, 3))
sketch3.addConstraint(Sketcher.Constraint("Vertical", 51, 3, 52, 3))
sketch3.addConstraint(Sketcher.Constraint("Vertical", 52, 3, 53, 3))
sketch3.addConstraint(Sketcher.Constraint("Vertical", 53, 3, 54, 3))
sketch3.addConstraint(Sketcher.Constraint("Vertical", 55, 3, 56, 3))
sketch3.addConstraint(Sketcher.Constraint("Vertical", 56, 3, 57, 3))
sketch3.addConstraint(Sketcher.Constraint("Vertical", 57, 3, 58, 3))
sketch3.addConstraint(Sketcher.Constraint("Vertical", 58, 3, 59, 3))
sketch3.addConstraint(Sketcher.Constraint("Diameter", 0, Q("0.189 in")))
sketch3.addConstraint(Sketcher.Constraint("DistanceY", 1, 3, 0, 3, Q("0.3 in")))
sketch3.addConstraint(Sketcher.Constraint("DistanceY", 2, 3, 1, 3, Q("0.3 in")))
sketch3.addConstraint(Sketcher.Constraint("DistanceY", 3, 3, 2, 3, Q("0.3 in")))
sketch3.addConstraint(Sketcher.Constraint("DistanceY", 4, 3, 3, 3, Q("0.3 in")))
sketch3.addConstraint(Sketcher.Constraint("DistanceX", 0, 3, 5, 3, Q("0.3 in")))
sketch3.addConstraint(Sketcher.Constraint("DistanceX", 5, 3, 10, 3, Q("0.3 in")))
sketch3.addConstraint(Sketcher.Constraint("DistanceX", 16, 3, 15, 3, Q("0.3 in")))
sketch3.addConstraint(Sketcher.Constraint("DistanceY", 16, 3, 15, 3, Q("1.2 in")))
sketch3.addConstraint(Sketcher.Constraint("DistanceY", 16, 3, 17, 3, Q("0.3 in")))
sketch3.addConstraint(Sketcher.Constraint("DistanceX", 18, 3, 16, 3, Q("0.3 in")))
sketch3.addConstraint(Sketcher.Constraint("DistanceY", 17, 3, 19, 3, Q("0.3 in")))
sketch3.addConstraint(Sketcher.Constraint("DistanceY", 19, 3, 22, 3, Q("0.3 in")))
sketch3.addConstraint(Sketcher.Constraint("DistanceX", 30, 3, 31, 3, Q("0.3 in")))
sketch3.addConstraint(Sketcher.Constraint("DistanceX", 31, 3, 32, 3, Q("0.3 in")))
sketch3.addConstraint(Sketcher.Constraint("DistanceX", 50, 3, 49, 3, Q("0.3 in")))
sketch3.addConstraint(Sketcher.Constraint("DistanceX", 55, 3, 54, 3, Q("0.3 in")))
sketch3.addConstraint(Sketcher.Constraint("DistanceX", 0, 3, -1, 1, Q("128.711089 mm")))
sketch3.addConstraint(Sketcher.Constraint("DistanceY", -1, 1, 0, 3, Q("90.817392 mm")))
sketch3.addConstraint(Sketcher.Constraint("DistanceX", 15, 3, -1, 1, Q("113.364959 mm")))
sketch3.addConstraint(Sketcher.Constraint("DistanceY", 15, 3, -1, 1, Q("62.450852 mm")))
sketch3.addConstraint(Sketcher.Constraint("DistanceX", -1, 1, 30, 3, Q("121.153381 mm")))
sketch3.addConstraint(Sketcher.Constraint("DistanceX", -1, 1, 45, 3, Q("136.28725 mm")))
pocket2 = body.newObject("PartDesign::Pocket", "Pocket001")
pocket2.Profile = sketch3
pocket2.Length = Q("1 in")

# Sketch on XY plane
sketch4 = body.newObject("Sketcher::SketchObject", "Sketch003")
sketch4.AttachmentSupport = (doc.getObject("XY_Plane"), [""])
sketch4.MapMode = "FlatFace"
sketch4.AttachmentOffset = App.Placement(App.Vector(0, 0, 0.25 * 25.4), App.Rotation())
sketch4.addGeometry(Part.LineSegment(App.Vector(-50.788373, 12.7, 0), App.Vector(-50.788373, -12.7, 0)), False)
sketch4.addGeometry(Part.LineSegment(App.Vector(-50.788373, -12.7, 0), App.Vector(58.470664, -12.7, 0)), False)
sketch4.addGeometry(Part.LineSegment(App.Vector(58.470664, -12.7, 0), App.Vector(58.470664, 12.7, 0)), False)
sketch4.addGeometry(Part.LineSegment(App.Vector(58.470664, 12.7, 0), App.Vector(-50.788373, 12.7, 0)), False)
sketch4.addConstraint(Sketcher.Constraint("Coincident", 0, 2, 1, 1))
sketch4.addConstraint(Sketcher.Constraint("Coincident", 1, 2, 2, 1))
sketch4.addConstraint(Sketcher.Constraint("Coincident", 2, 2, 3, 1))
sketch4.addConstraint(Sketcher.Constraint("Coincident", 3, 2, 0, 1))
sketch4.addConstraint(Sketcher.Constraint("Vertical", 0))
sketch4.addConstraint(Sketcher.Constraint("Horizontal", 1))
sketch4.addConstraint(Sketcher.Constraint("Vertical", 2))
sketch4.addConstraint(Sketcher.Constraint("Horizontal", 3))
sketch4.addConstraint(Sketcher.Constraint("DistanceY", 0, 2, 0, 1, Q("1 in")))
sketch4.addConstraint(Sketcher.Constraint("DistanceY", 0, 2, -1, 1, Q("0.5 in")))
sketch4.addConstraint(Sketcher.Constraint("DistanceX", 1, 1, 1, 2, Q("109.259037 mm")))
sketch4.addConstraint(Sketcher.Constraint("DistanceX", 0, 2, -1, 1, Q("50.788373 mm")))
pocket3 = body.newObject("PartDesign::Pocket", "Pocket002")
pocket3.Profile = sketch4
pocket3.Length = Q("1 in")

# Sketch on XY plane
sketch5 = body.newObject("Sketcher::SketchObject", "Sketch004")
sketch5.AttachmentSupport = (doc.getObject("XY_Plane"), [""])
sketch5.MapMode = "FlatFace"
sketch5.AttachmentOffset = App.Placement(App.Vector(0, 0, 0.25 * 25.4), App.Rotation())
sketch5.addGeometry(Part.ArcOfCircle(Part.Circle(App.Vector(41.58289, -92.191905, 0), App.Vector(0, 0, 1), 1.27), math.radians(90.000003), math.radians(359.999997)), False)
sketch5.addGeometry(Part.ArcOfCircle(Part.Circle(App.Vector(41.58289, -92.191905, 0), App.Vector(0, 0, 1), 1.27), math.radians(0.000017), math.radians(89.999983)), False)
sketch5.addGeometry(Part.ArcOfCircle(Part.Circle(App.Vector(-8.854999, -91.884503, 0), App.Vector(0, 0, 1), 1.270002), math.radians(0.000094), math.radians(89.999906)), False)
sketch5.addGeometry(Part.ArcOfCircle(Part.Circle(App.Vector(-8.854997, -91.884501, 0), App.Vector(0, 0, 1), 1.27), math.radians(89.99999), math.radians(360.00001)), False)
sketch5.addGeometry(Part.ArcOfCircle(Part.Circle(App.Vector(-8.854999, -27.104089, 0), App.Vector(0, 0, 1), 1.270002), math.radians(0.000094), math.radians(89.999906)), False)
sketch5.addGeometry(Part.ArcOfCircle(Part.Circle(App.Vector(-8.854997, -27.104087, 0), App.Vector(0, 0, 1), 1.27), math.radians(90), math.radians(270)), False)
sketch5.addGeometry(Part.ArcOfCircle(Part.Circle(App.Vector(-8.854997, -27.104087, 0), App.Vector(0, 0, 1), 1.27), math.radians(-89.999983), math.radians(-0.000017)), False)
sketch5.addGeometry(Part.ArcOfCircle(Part.Circle(App.Vector(41.58289, -26.267545, 0), App.Vector(0, 0, 1), 1.27), math.radians(90), math.radians(270)), False)
sketch5.addGeometry(Part.ArcOfCircle(Part.Circle(App.Vector(41.58289, -26.267545, 0), App.Vector(0, 0, 1), 1.27), math.radians(-89.999983), math.radians(-0.000017)), False)
sketch5.addGeometry(Part.ArcOfCircle(Part.Circle(App.Vector(41.582888, -26.267547, 0), App.Vector(0, 0, 1), 1.270002), math.radians(0.000094), math.radians(89.999906)), False)
sketch5.addGeometry(Part.ArcOfCircle(Part.Circle(App.Vector(-8.854997, 91.884501, 0), App.Vector(0, 0, 1), 1.27), math.radians(-0.00001), math.radians(270.00001)), False)
sketch5.addGeometry(Part.ArcOfCircle(Part.Circle(App.Vector(-8.854999, 91.884503, 0), App.Vector(0, 0, 1), 1.270002), math.radians(-89.999906), math.radians(-0.000094)), False)
sketch5.addGeometry(Part.ArcOfCircle(Part.Circle(App.Vector(-8.854997, 27.104087, 0), App.Vector(0, 0, 1), 1.27), math.radians(90), math.radians(270)), False)
sketch5.addGeometry(Part.ArcOfCircle(Part.Circle(App.Vector(-8.854999, 27.104089, 0), App.Vector(0, 0, 1), 1.270002), math.radians(-89.999906), math.radians(-0.000094)), False)
sketch5.addGeometry(Part.ArcOfCircle(Part.Circle(App.Vector(-8.854997, 27.104087, 0), App.Vector(0, 0, 1), 1.27), math.radians(0.000017), math.radians(89.999983)), False)
sketch5.addGeometry(Part.ArcOfCircle(Part.Circle(App.Vector(41.58289, 92.191905, 0), App.Vector(0, 0, 1), 1.27), math.radians(0.000003), math.radians(269.999997)), False)
sketch5.addGeometry(Part.ArcOfCircle(Part.Circle(App.Vector(41.58289, 92.191905, 0), App.Vector(0, 0, 1), 1.27), math.radians(-89.999983), math.radians(-0.000017)), False)
sketch5.addGeometry(Part.ArcOfCircle(Part.Circle(App.Vector(41.58289, 26.267545, 0), App.Vector(0, 0, 1), 1.27), math.radians(90), math.radians(270)), False)
sketch5.addGeometry(Part.ArcOfCircle(Part.Circle(App.Vector(41.582888, 26.267547, 0), App.Vector(0, 0, 1), 1.270002), math.radians(-89.999906), math.radians(-0.000094)), False)
sketch5.addGeometry(Part.ArcOfCircle(Part.Circle(App.Vector(41.58289, 26.267545, 0), App.Vector(0, 0, 1), 1.27), math.radians(0.000017), math.radians(89.999983)), False)
sketch5.addConstraint(Sketcher.Constraint("Tangent", 0, 1, 1, 2))
sketch5.addConstraint(Sketcher.Constraint("Coincident", 1, 1, 0, 2))
sketch5.addConstraint(Sketcher.Constraint("Tangent", 2, 1, 3, 2))
sketch5.addConstraint(Sketcher.Constraint("Coincident", 3, 1, 2, 2))
sketch5.addConstraint(Sketcher.Constraint("Tangent", 4, 2, 5, 1))
sketch5.addConstraint(Sketcher.Constraint("Tangent", 5, 2, 6, 1))
sketch5.addConstraint(Sketcher.Constraint("Tangent", 6, 2, 4, 1))
sketch5.addConstraint(Sketcher.Constraint("Tangent", 7, 2, 8, 1))
sketch5.addConstraint(Sketcher.Constraint("Tangent", 8, 2, 9, 1))
sketch5.addConstraint(Sketcher.Constraint("Tangent", 9, 2, 7, 1))
sketch5.addConstraint(Sketcher.Constraint("Tangent", 10, 1, 11, 2))
sketch5.addConstraint(Sketcher.Constraint("Coincident", 11, 1, 10, 2))
sketch5.addConstraint(Sketcher.Constraint("Tangent", 12, 2, 13, 1))
sketch5.addConstraint(Sketcher.Constraint("Tangent", 13, 2, 14, 1))
sketch5.addConstraint(Sketcher.Constraint("Tangent", 14, 2, 12, 1))
sketch5.addConstraint(Sketcher.Constraint("Tangent", 15, 1, 16, 2))
sketch5.addConstraint(Sketcher.Constraint("Coincident", 16, 1, 15, 2))
sketch5.addConstraint(Sketcher.Constraint("Tangent", 17, 2, 18, 1))
sketch5.addConstraint(Sketcher.Constraint("Tangent", 18, 2, 19, 1))
sketch5.addConstraint(Sketcher.Constraint("Tangent", 19, 2, 17, 1))
sketch5.addConstraint(Sketcher.Constraint("Equal", 1, 2))
sketch5.addConstraint(Sketcher.Constraint("Equal", 3, 4))
sketch5.addConstraint(Sketcher.Constraint("Equal", 6, 7))
sketch5.addConstraint(Sketcher.Constraint("Equal", 9, 10))
sketch5.addConstraint(Sketcher.Constraint("Equal", 10, 12))
sketch5.addConstraint(Sketcher.Constraint("Equal", 14, 15))
sketch5.addConstraint(Sketcher.Constraint("Equal", 16, 17))
sketch5.addConstraint(Sketcher.Constraint("Symmetric", 2, 3, 10, 3, -1))
sketch5.addConstraint(Sketcher.Constraint("Symmetric", 4, 3, 12, 3, -1))
sketch5.addConstraint(Sketcher.Constraint("Symmetric", 0, 3, 15, 3, -1))
sketch5.addConstraint(Sketcher.Constraint("Symmetric", 7, 3, 17, 3, -1))
sketch5.addConstraint(Sketcher.Constraint("Horizontal", 0, 3, 1, 1))
sketch5.addConstraint(Sketcher.Constraint("Horizontal", 3, 3, 2, 1))
sketch5.addConstraint(Sketcher.Constraint("Horizontal", 5, 3, 6, 2))
sketch5.addConstraint(Sketcher.Constraint("Horizontal", 7, 3, 8, 2))
sketch5.addConstraint(Sketcher.Constraint("Horizontal", 14, 3, 13, 2))
sketch5.addConstraint(Sketcher.Constraint("Horizontal", 16, 3, 15, 1))
sketch5.addConstraint(Sketcher.Constraint("Horizontal", 19, 3, 18, 2))
sketch5.addConstraint(Sketcher.Constraint("Vertical", 3, 3, 4, 3))
sketch5.addConstraint(Sketcher.Constraint("Vertical", 1, 3, 7, 3))
sketch5.addConstraint(Sketcher.Constraint("Vertical", 19, 3, 0, 1))
sketch5.addConstraint(Sketcher.Constraint("Vertical", 14, 3, 3, 1))
sketch5.addConstraint(Sketcher.Constraint("Vertical", 3, 1, 4, 2))
sketch5.addConstraint(Sketcher.Constraint("Vertical", 4, 2, 5, 2))
sketch5.addConstraint(Sketcher.Constraint("Vertical", 0, 1, 7, 2))
sketch5.addConstraint(Sketcher.Constraint("Vertical", 7, 2, 9, 2))
sketch5.addConstraint(Sketcher.Constraint("Vertical", 5, 2, 11, 1))
sketch5.addConstraint(Sketcher.Constraint("Vertical", 11, 1, 12, 2))
sketch5.addConstraint(Sketcher.Constraint("Vertical", 12, 2, 14, 2))
sketch5.addConstraint(Sketcher.Constraint("Vertical", 9, 2, 16, 1))
sketch5.addConstraint(Sketcher.Constraint("Vertical", 16, 1, 17, 2))
sketch5.addConstraint(Sketcher.Constraint("Vertical", 17, 2, 19, 2))
sketch5.addConstraint(Sketcher.Constraint("Radius", 0, Q("0.05 in")))
sketch5.addConstraint(Sketcher.Constraint("DistanceY", 11, 1, 10, 1, Q("0.05 in")))
sketch5.addConstraint(Sketcher.Constraint("DistanceY", 2, 3, -1, 1, Q("3.6175001 in")))
sketch5.addConstraint(Sketcher.Constraint("DistanceX", 2, 3, -1, 1, Q("8.854999 mm")))
sketch5.addConstraint(Sketcher.Constraint("DistanceY", 0, 3, 2, 3, Q("0.307402 mm")))
sketch5.addConstraint(Sketcher.Constraint("DistanceX", -1, 1, 0, 3, Q("41.58289 mm")))
sketch5.addConstraint(Sketcher.Constraint("DistanceY", 4, 3, -1, 1, Q("27.104089 mm")))
sketch5.addConstraint(Sketcher.Constraint("DistanceY", 6, 3, 7, 3, Q("0.836542 mm")))
pocket4 = body.newObject("PartDesign::Pocket", "Pocket003")
pocket4.Profile = sketch5
pocket4.Length = Q("2 in")
body2 = doc.addObject("PartDesign::Body", "Body001")

# Sketch on XY plane
sketch6 = body2.newObject("Sketcher::SketchObject", "Sketch005")
sketch6.AttachmentSupport = (doc.getObject("XY_Plane001"), [""])
sketch6.MapMode = "FlatFace"
sketch6.addGeometry(Part.LineSegment(App.Vector(-302.354068, 248.46074, 0), App.Vector(-302.354068, -234.30033, 0)), False)
sketch6.addGeometry(Part.LineSegment(App.Vector(-302.354068, -234.30033, 0), App.Vector(312.069118, -234.30033, 0)), False)
sketch6.addGeometry(Part.LineSegment(App.Vector(312.069118, -234.30033, 0), App.Vector(312.069118, 248.46074, 0)), False)
sketch6.addGeometry(Part.LineSegment(App.Vector(312.069118, 248.46074, 0), App.Vector(-302.354068, 248.46074, 0)), False)
sketch6.addGeometry(Part.Circle(App.Vector(3.841146, 0, 0), App.Vector(0, 0, 1), 220), False)
sketch6.addConstraint(Sketcher.Constraint("Coincident", 0, 2, 1, 1))
sketch6.addConstraint(Sketcher.Constraint("Coincident", 1, 2, 2, 1))
sketch6.addConstraint(Sketcher.Constraint("Coincident", 2, 2, 3, 1))
sketch6.addConstraint(Sketcher.Constraint("Coincident", 3, 2, 0, 1))
sketch6.addConstraint(Sketcher.Constraint("Vertical", 0))
sketch6.addConstraint(Sketcher.Constraint("Horizontal", 1))
sketch6.addConstraint(Sketcher.Constraint("Vertical", 2))
sketch6.addConstraint(Sketcher.Constraint("Horizontal", 3))
sketch6.addConstraint(Sketcher.Constraint("PointOnObject", 4, 3, -1))
sketch6.addConstraint(Sketcher.Constraint("Diameter", 4, Q("440 mm")))
sketch6.addConstraint(Sketcher.Constraint("DistanceY", 0, 2, 0, 1, Q("482.76107 mm")))
sketch6.addConstraint(Sketcher.Constraint("DistanceX", 1, 1, 1, 2, Q("614.423186 mm")))
sketch6.addConstraint(Sketcher.Constraint("DistanceX", 0, 2, -1, 1, Q("302.354068 mm")))
sketch6.addConstraint(Sketcher.Constraint("DistanceY", 0, 2, -1, 1, Q("234.30033 mm")))
sketch6.addConstraint(Sketcher.Constraint("DistanceX", 4, 3, 1, 2, Q("308.227972 mm")))
pad2 = body2.newObject("PartDesign::Pad", "Pad001")
pad2.Profile = sketch6
pad2.Length = Q("0.1 in")

doc.recompute()
